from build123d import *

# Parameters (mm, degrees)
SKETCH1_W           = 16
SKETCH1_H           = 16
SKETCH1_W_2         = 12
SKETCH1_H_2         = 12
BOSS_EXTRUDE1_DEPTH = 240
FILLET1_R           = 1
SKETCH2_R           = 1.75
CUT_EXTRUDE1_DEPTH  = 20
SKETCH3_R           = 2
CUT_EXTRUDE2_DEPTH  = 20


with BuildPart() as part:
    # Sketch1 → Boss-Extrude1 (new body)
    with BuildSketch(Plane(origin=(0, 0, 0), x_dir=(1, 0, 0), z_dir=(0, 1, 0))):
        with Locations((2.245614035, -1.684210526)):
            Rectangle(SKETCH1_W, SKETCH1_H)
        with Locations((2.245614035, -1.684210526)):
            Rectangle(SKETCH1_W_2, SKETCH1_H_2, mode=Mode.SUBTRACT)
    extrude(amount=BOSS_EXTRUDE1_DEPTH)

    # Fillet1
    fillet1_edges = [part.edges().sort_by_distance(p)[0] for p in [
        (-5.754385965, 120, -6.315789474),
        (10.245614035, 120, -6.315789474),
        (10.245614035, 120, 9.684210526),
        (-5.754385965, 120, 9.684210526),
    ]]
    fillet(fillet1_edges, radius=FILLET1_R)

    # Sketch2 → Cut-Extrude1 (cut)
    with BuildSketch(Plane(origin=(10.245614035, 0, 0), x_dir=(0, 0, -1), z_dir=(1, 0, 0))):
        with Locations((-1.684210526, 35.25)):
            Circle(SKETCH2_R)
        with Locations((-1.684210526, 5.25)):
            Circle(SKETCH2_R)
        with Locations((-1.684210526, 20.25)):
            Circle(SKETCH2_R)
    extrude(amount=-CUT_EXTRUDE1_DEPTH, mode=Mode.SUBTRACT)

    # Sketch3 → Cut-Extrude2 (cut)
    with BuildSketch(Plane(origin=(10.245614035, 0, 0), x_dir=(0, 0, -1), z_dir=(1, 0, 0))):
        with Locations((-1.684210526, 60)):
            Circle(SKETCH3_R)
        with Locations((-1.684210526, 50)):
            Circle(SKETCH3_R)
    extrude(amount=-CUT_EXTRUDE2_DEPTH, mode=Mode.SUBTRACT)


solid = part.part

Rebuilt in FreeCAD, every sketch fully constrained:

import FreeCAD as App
import Part
import Sketcher

V = App.Vector


def edges_at(feature, points):
    """Names of the edges that pass closest to the given points."""
    edges = feature.Shape.Edges
    near = lambda p: min(range(len(edges)), key=lambda i: edges[i].distToShape(Part.Vertex(*p))[0])
    return sorted({f"Edge{near(p) + 1}" for p in points})


def add_polygon(sketch, points):
    """Adds a closed chain of lines whose ends are joined by coincident constraints."""
    first, n = sketch.GeometryCount, len(points)
    for a, b in zip(points, points[1:] + points[:1]):
        sketch.addGeometry(Part.LineSegment(App.Vector(*a, 0), App.Vector(*b, 0)), False)
    for i in range(n):
        sketch.addConstraint(Sketcher.Constraint("Coincident", first + i, 2, first + (i + 1) % n, 1))

doc = App.newDocument("Part")
body = doc.addObject("PartDesign::Body", "Body")

# Sketch on XZ plane
sketch1 = doc.addObject("Sketcher::SketchObject", "Sketch")
body.addObject(sketch1)
sketch1.AttachmentSupport = (doc.XZ_Plane, [""])
sketch1.MapMode = "FlatFace"
add_polygon(sketch1, [(-6, -6), (-6, 10), (10, 10), (10, -6)])  # lines 0-3
add_polygon(sketch1, [(8, 8), (-4, 8), (-4, -4), (8, -4)])  # lines 4-7
sketch1.addConstraint(Sketcher.Constraint("Vertical", 0))
sketch1.addConstraint(Sketcher.Constraint("Horizontal", 1))
sketch1.addConstraint(Sketcher.Constraint("Vertical", 2))
sketch1.addConstraint(Sketcher.Constraint("Horizontal", 3))
sketch1.addConstraint(Sketcher.Constraint("Horizontal", 4))
sketch1.addConstraint(Sketcher.Constraint("Vertical", 5))
sketch1.addConstraint(Sketcher.Constraint("Horizontal", 6))
sketch1.addConstraint(Sketcher.Constraint("Vertical", 7))
sketch1.addConstraint(Sketcher.Constraint("Equal", 3, 0))
sketch1.addConstraint(Sketcher.Constraint("Equal", 6, 5))
sketch1.addConstraint(Sketcher.Constraint("DistanceX", 1, 1, 1, 2, 16.0))
sketch1.addConstraint(Sketcher.Constraint("DistanceX", 4, 2, 4, 1, 12.0))
sketch1.addConstraint(Sketcher.Constraint("DistanceX", 0, 2, 4, 2, 2.0))
sketch1.addConstraint(Sketcher.Constraint("DistanceY", 4, 2, 0, 2, 2.0))
sketch1.addConstraint(Sketcher.Constraint("DistanceY", -1, 1, 0, 2, 9.684211))
sketch1.addConstraint(Sketcher.Constraint("DistanceX", 0, 2, -1, 1, 5.754386))
pad1 = doc.addObject("PartDesign::Pad", "Pad")
body.addObject(pad1)
pad1.Profile = sketch1
pad1.Length = 240
pad1.Reversed = True
doc.recompute()

fillet = doc.addObject("PartDesign::Fillet", "Fillet")
body.addObject(fillet)
fillet.Base = (pad1, edges_at(pad1, [
    (-5.754, 120, -6.316),
    (10.246, 120, -6.316),
    (10.246, 120, 9.684),
    (-5.754, 120, 9.684),
]))
fillet.Radius = 1

# Sketch on YZ plane
sketch2 = doc.addObject("Sketcher::SketchObject", "Sketch001")
body.addObject(sketch2)
sketch2.AttachmentSupport = (doc.YZ_Plane, [""])
sketch2.MapMode = "FlatFace"
sketch2.AttachmentOffset = App.Placement(V(0, 0, 10.245614), App.Rotation())
sketch2.addGeometry(Part.Circle(V(35.2, 1.7, 0), V(0, 0, 1), 1.8), False)
sketch2.addGeometry(Part.Circle(V(5.2, 1.7, 0), V(0, 0, 1), 1.8), False)
sketch2.addGeometry(Part.Circle(V(20.2, 1.7, 0), V(0, 0, 1), 1.8), False)
sketch2.addConstraint(Sketcher.Constraint("Equal", 0, 1))
sketch2.addConstraint(Sketcher.Constraint("Equal", 1, 2))
sketch2.addConstraint(Sketcher.Constraint("Horizontal", 0, 3, 1, 3))
sketch2.addConstraint(Sketcher.Constraint("Horizontal", 1, 3, 2, 3))
sketch2.addConstraint(Sketcher.Constraint("Diameter", 0, 3.5))
sketch2.addConstraint(Sketcher.Constraint("DistanceX", 1, 3, 0, 3, 30.0))
sketch2.addConstraint(Sketcher.Constraint("DistanceX", 2, 3, 0, 3, 15.0))
sketch2.addConstraint(Sketcher.Constraint("DistanceX", -1, 1, 0, 3, 35.25))
sketch2.addConstraint(Sketcher.Constraint("DistanceY", -1, 1, 0, 3, 1.684211))
pocket1 = doc.addObject("PartDesign::Pocket", "Pocket")
body.addObject(pocket1)
pocket1.Profile = sketch2
pocket1.Length = 20

# Sketch on YZ plane
sketch3 = doc.addObject("Sketcher::SketchObject", "Sketch002")
body.addObject(sketch3)
sketch3.AttachmentSupport = (doc.YZ_Plane, [""])
sketch3.MapMode = "FlatFace"
sketch3.AttachmentOffset = App.Placement(V(0, 0, 10.245614), App.Rotation())
sketch3.addGeometry(Part.Circle(V(60, 1.7, 0), V(0, 0, 1), 2), False)
sketch3.addGeometry(Part.Circle(V(50, 1.7, 0), V(0, 0, 1), 2), False)
sketch3.addConstraint(Sketcher.Constraint("Equal", 0, 1))
sketch3.addConstraint(Sketcher.Constraint("Horizontal", 0, 3, 1, 3))
sketch3.addConstraint(Sketcher.Constraint("Diameter", 0, 4.0))
sketch3.addConstraint(Sketcher.Constraint("DistanceX", -1, 1, 0, 3, 60.0))
sketch3.addConstraint(Sketcher.Constraint("DistanceX", -1, 1, 1, 3, 50.0))
sketch3.addConstraint(Sketcher.Constraint("DistanceY", -1, 1, 0, 3, 1.684211))
pocket2 = doc.addObject("PartDesign::Pocket", "Pocket001")
body.addObject(pocket2)
pocket2.Profile = sketch3
pocket2.Length = 20

doc.recompute()
